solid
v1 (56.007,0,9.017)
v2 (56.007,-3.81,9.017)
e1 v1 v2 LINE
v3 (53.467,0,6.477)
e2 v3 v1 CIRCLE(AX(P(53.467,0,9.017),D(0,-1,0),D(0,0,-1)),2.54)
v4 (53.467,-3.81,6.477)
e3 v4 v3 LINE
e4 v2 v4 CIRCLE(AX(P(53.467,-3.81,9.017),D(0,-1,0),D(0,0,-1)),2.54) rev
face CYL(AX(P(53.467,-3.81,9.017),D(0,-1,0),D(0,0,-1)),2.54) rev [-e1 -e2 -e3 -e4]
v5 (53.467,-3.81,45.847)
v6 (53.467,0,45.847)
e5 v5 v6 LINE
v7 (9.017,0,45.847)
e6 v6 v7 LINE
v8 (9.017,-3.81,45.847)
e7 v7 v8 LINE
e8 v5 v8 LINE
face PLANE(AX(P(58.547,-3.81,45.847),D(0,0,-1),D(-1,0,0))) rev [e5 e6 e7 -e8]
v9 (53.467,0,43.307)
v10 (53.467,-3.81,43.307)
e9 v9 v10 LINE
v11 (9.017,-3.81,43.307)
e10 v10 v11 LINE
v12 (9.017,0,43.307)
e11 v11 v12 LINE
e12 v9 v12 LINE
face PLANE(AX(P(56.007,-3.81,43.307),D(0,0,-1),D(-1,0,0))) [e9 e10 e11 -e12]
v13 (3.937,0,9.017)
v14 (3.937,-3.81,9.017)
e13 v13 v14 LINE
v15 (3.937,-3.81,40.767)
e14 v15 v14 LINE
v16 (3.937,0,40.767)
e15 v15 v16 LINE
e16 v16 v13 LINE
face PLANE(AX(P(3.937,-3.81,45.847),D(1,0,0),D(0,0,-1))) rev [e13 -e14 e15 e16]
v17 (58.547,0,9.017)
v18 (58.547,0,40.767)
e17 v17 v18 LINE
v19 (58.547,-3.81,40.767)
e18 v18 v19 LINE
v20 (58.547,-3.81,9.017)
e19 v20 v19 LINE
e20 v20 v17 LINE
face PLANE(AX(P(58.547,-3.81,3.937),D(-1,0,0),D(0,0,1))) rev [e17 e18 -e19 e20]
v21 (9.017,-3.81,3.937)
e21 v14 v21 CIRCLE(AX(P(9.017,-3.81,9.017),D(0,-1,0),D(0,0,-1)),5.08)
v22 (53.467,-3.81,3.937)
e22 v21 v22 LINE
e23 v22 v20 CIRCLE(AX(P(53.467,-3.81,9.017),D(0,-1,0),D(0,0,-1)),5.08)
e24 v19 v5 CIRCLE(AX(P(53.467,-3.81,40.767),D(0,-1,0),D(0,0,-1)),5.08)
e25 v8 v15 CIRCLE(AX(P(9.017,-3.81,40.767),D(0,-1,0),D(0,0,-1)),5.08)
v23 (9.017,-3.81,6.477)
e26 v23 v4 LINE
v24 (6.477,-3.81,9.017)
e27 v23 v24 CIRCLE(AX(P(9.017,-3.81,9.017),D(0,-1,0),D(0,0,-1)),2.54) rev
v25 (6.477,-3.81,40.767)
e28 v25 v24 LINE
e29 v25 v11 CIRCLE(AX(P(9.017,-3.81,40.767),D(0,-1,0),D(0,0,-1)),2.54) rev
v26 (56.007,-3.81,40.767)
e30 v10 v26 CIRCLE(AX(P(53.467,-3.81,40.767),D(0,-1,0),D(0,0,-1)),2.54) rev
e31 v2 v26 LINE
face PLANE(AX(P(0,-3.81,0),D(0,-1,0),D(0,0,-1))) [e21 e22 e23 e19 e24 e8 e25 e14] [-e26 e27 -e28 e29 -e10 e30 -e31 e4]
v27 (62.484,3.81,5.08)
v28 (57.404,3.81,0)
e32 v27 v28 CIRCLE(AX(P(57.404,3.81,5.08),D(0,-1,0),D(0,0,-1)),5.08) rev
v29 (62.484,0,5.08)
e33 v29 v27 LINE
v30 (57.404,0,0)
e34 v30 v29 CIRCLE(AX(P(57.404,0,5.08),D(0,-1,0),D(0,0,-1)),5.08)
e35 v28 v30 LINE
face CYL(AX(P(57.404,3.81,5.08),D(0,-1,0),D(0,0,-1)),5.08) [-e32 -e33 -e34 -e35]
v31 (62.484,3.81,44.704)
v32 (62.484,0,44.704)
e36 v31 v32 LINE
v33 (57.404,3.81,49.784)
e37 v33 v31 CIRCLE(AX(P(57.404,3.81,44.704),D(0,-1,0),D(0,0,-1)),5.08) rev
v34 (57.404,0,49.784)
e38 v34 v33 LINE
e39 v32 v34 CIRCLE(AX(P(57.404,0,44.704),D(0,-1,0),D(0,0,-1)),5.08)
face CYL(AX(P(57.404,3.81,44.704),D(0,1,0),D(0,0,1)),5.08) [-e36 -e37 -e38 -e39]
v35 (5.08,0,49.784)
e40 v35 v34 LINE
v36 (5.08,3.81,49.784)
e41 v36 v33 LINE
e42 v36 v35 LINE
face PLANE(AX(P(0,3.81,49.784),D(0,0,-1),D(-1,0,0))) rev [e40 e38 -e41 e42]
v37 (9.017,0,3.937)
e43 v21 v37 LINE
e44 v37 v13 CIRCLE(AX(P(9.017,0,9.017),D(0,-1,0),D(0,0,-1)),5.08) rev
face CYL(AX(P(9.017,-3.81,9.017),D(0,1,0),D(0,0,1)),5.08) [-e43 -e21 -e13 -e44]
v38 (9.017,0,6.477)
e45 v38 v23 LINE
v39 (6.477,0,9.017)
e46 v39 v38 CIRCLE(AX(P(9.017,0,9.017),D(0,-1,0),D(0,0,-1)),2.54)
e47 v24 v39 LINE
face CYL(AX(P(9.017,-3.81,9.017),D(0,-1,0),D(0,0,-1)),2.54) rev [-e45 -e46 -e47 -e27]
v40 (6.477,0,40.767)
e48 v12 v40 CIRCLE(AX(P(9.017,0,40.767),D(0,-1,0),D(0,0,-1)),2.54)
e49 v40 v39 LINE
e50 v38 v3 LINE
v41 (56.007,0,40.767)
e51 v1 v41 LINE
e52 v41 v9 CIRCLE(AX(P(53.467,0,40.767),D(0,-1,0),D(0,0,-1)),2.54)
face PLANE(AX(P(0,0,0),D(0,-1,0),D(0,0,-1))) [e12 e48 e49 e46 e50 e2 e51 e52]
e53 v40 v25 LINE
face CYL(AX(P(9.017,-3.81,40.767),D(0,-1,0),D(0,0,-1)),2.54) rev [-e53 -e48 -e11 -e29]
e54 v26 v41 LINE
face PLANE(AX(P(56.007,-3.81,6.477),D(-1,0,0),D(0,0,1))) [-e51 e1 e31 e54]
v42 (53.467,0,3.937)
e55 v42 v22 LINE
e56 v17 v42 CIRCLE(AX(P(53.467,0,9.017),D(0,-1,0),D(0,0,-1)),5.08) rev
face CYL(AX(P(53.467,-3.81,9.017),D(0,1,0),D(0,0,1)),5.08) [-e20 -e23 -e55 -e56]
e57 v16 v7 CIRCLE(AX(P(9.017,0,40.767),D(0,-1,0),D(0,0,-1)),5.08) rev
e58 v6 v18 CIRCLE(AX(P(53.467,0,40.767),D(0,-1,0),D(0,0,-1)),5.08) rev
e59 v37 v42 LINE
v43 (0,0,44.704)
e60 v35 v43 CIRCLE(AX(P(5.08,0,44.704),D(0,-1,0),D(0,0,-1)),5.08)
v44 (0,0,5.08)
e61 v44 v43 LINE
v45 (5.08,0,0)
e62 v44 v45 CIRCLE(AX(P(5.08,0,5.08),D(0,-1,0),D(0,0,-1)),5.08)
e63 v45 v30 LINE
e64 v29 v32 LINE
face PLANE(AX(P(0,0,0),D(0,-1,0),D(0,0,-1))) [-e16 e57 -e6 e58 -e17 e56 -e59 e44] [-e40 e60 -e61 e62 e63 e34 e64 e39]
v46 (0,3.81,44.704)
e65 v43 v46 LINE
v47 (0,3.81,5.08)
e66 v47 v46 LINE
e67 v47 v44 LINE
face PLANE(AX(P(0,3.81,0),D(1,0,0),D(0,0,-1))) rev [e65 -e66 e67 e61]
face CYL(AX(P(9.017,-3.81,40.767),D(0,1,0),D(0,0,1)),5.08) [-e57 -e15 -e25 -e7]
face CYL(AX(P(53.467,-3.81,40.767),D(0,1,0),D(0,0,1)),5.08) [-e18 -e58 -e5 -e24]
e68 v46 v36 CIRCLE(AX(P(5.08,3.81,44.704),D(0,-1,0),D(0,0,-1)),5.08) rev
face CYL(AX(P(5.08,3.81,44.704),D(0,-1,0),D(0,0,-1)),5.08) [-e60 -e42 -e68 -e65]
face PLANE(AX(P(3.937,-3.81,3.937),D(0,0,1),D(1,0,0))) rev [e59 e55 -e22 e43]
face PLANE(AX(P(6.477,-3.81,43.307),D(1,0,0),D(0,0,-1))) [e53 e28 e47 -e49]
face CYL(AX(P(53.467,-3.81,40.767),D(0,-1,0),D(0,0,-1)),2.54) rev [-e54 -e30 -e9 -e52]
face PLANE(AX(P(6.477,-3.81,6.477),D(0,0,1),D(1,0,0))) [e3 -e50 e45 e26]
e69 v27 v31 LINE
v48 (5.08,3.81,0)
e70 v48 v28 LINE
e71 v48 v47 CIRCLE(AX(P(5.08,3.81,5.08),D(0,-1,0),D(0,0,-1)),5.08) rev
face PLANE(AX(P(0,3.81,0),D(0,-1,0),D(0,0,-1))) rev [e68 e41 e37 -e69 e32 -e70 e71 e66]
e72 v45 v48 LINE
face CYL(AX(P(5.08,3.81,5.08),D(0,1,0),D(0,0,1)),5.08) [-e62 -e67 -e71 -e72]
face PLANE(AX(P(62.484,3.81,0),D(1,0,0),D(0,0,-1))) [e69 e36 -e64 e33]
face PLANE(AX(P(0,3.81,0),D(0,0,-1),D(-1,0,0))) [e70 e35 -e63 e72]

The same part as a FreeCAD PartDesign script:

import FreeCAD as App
import Part
import Sketcher
Q = App.Units.Quantity


def edges_at(feature, points):
    """Names of the edges that pass closest to the given points."""
    edges = feature.Shape.Edges
    near = lambda p: min(range(len(edges)), key=lambda i: edges[i].distToShape(Part.Vertex(*p))[0])
    return sorted({f"Edge{near(p) + 1}" for p in points})

doc = App.newDocument("Part")
params = doc.addObject("Spreadsheet::Sheet", "Params")
for row, (alias, value) in enumerate([
    ("sketch1_width", "2.46 in"),
    ("sketch1_height", "1.96 in"),
    ("pad1_length", "0.15 in"),
    ("sketch2_width", "2.15 in"),
    ("sketch2_width2", "1.95 in"),
    ("sketch2_height", "1.65 in"),
    ("sketch2_height2", "1.45 in"),
    ("pad2_length", "0.15 in"),
    ("fillet_radius", "0.2 in"),
    ("fillet2_radius", "0.2 in"),
    ("fillet3_radius", "0.1 in"),
], start=1):
    params.set(f"A{row}", alias)
    params.set(f"B{row}", "=" + value)
    params.setAlias(f"B{row}", alias)

body = doc.addObject("PartDesign::Body", "Body")

# Sketch on XZ plane
sketch1 = body.newObject("Sketcher::SketchObject", "Sketch")
sketch1.AttachmentSupport = (doc.getObject("XZ_Plane"), [""])
sketch1.MapMode = "FlatFace"
sketch1.addGeometry(Part.LineSegment(App.Vector(0, 0, 0), App.Vector(0, 50, 0)), False)
sketch1.addGeometry(Part.LineSegment(App.Vector(0, 50, 0), App.Vector(62, 50, 0)), False)
sketch1.addGeometry(Part.LineSegment(App.Vector(62, 50, 0), App.Vector(62, 0, 0)), False)
sketch1.addGeometry(Part.LineSegment(App.Vector(62, 0, 0), App.Vector(0, 0, 0)), False)
sketch1.addConstraint(Sketcher.Constraint("Coincident", 0, 2, 1, 1))
sketch1.addConstraint(Sketcher.Constraint("Coincident", 1, 2, 2, 1))
sketch1.addConstraint(Sketcher.Constraint("Coincident", 2, 2, 3, 1))
sketch1.addConstraint(Sketcher.Constraint("Coincident", 3, 2, 0, 1))
sketch1.addConstraint(Sketcher.Constraint("Vertical", 0))
sketch1.addConstraint(Sketcher.Constraint("Horizontal", 1))
sketch1.addConstraint(Sketcher.Constraint("Vertical", 2))
sketch1.addConstraint(Sketcher.Constraint("Horizontal", 3))
sketch1.addConstraint(Sketcher.Constraint("Coincident", 3, 2, -1, 1))
sketch1.addConstraint(Sketcher.Constraint("DistanceX", 1, 1, 1, 2, Q("2.46 in")))
sketch1.addConstraint(Sketcher.Constraint("DistanceY", 0, 1, 0, 2, Q("1.96 in")))
sketch1.setExpression("Constraints[9]", "Params.sketch1_width")
sketch1.setExpression("Constraints[10]", "Params.sketch1_height")
pad1 = body.newObject("PartDesign::Pad", "Pad")
pad1.Profile = sketch1
pad1.setExpression("Length", "Params.pad1_length")
pad1.Reversed = True

# Sketch on XZ plane
sketch2 = body.newObject("Sketcher::SketchObject", "Sketch001")
sketch2.AttachmentSupport = (doc.getObject("XZ_Plane"), [""])
sketch2.MapMode = "FlatFace"
sketch2.addGeometry(Part.LineSegment(App.Vector(4, 46, 0), App.Vector(4, 4, 0)), False)
sketch2.addGeometry(Part.LineSegment(App.Vector(4, 4, 0), App.Vector(59, 4, 0)), False)
sketch2.addGeometry(Part.LineSegment(App.Vector(59, 4, 0), App.Vector(59, 46, 0)), False)
sketch2.addGeometry(Part.LineSegment(App.Vector(59, 46, 0), App.Vector(4, 46, 0)), False)
sketch2.addGeometry(Part.LineSegment(App.Vector(56, 6, 0), App.Vector(6, 6, 0)), False)
sketch2.addGeometry(Part.LineSegment(App.Vector(6, 6, 0), App.Vector(6, 43, 0)), False)
sketch2.addGeometry(Part.LineSegment(App.Vector(6, 43, 0), App.Vector(56, 43, 0)), False)
sketch2.addGeometry(Part.LineSegment(App.Vector(56, 43, 0), App.Vector(56, 6, 0)), False)
sketch2.addConstraint(Sketcher.Constraint("Coincident", 0, 2, 1, 1))
sketch2.addConstraint(Sketcher.Constraint("Coincident", 1, 2, 2, 1))
sketch2.addConstraint(Sketcher.Constraint("Coincident", 2, 2, 3, 1))
sketch2.addConstraint(Sketcher.Constraint("Coincident", 3, 2, 0, 1))
sketch2.addConstraint(Sketcher.Constraint("Coincident", 4, 2, 5, 1))
sketch2.addConstraint(Sketcher.Constraint("Coincident", 5, 2, 6, 1))
sketch2.addConstraint(Sketcher.Constraint("Coincident", 6, 2, 7, 1))
sketch2.addConstraint(Sketcher.Constraint("Coincident", 7, 2, 4, 1))
sketch2.addConstraint(Sketcher.Constraint("Vertical", 0))
sketch2.addConstraint(Sketcher.Constraint("Horizontal", 1))
sketch2.addConstraint(Sketcher.Constraint("Vertical", 2))
sketch2.addConstraint(Sketcher.Constraint("Horizontal", 3))
sketch2.addConstraint(Sketcher.Constraint("Horizontal", 4))
sketch2.addConstraint(Sketcher.Constraint("Vertical", 5))
sketch2.addConstraint(Sketcher.Constraint("Horizontal", 6))
sketch2.addConstraint(Sketcher.Constraint("Vertical", 7))
sketch2.addConstraint(Sketcher.Constraint("DistanceX", 1, 1, 1, 2, Q("2.15 in")))
sketch2.addConstraint(Sketcher.Constraint("DistanceX", 4, 2, 4, 1, Q("1.95 in")))
sketch2.addConstraint(Sketcher.Constraint("DistanceY", 0, 2, 0, 1, Q("1.65 in")))
sketch2.addConstraint(Sketcher.Constraint("DistanceY", 5, 1, 5, 2, Q("1.45 in")))
sketch2.addConstraint(Sketcher.Constraint("DistanceX", 0, 2, 4, 2, Q("0.1 in")))
sketch2.addConstraint(Sketcher.Constraint("DistanceY", 0, 2, 4, 2, Q("0.1 in")))
sketch2.addConstraint(Sketcher.Constraint("DistanceX", -1, 1, 0, 2, Q("0.155 in")))
sketch2.addConstraint(Sketcher.Constraint("DistanceY", -1, 1, 0, 2, Q("0.155 in")))
sketch2.setExpression("Constraints[16]", "Params.sketch2_width")
sketch2.setExpression("Constraints[17]", "Params.sketch2_width2")
sketch2.setExpression("Constraints[18]", "Params.sketch2_height")
sketch2.setExpression("Constraints[19]", "Params.sketch2_height2")
pad2 = body.newObject("PartDesign::Pad", "Pad001")
pad2.Profile = sketch2
pad2.setExpression("Length", "Params.pad2_length")
doc.recompute()

fillet = body.newObject("PartDesign::Fillet", "Fillet")
fillet.Base = (pad2, edges_at(pad2, [
    (0, 1.905, 49.784),
    (0, 1.905, 0),
    (62.484, 1.905, 0),
    (62.484, 1.905, 49.784),
]))
fillet.setExpression("Radius", "Params.fillet_radius")
doc.recompute()

fillet2 = body.newObject("PartDesign::Fillet", "Fillet001")
fillet2.Base = (fillet, edges_at(fillet, [
    (58.547, -1.905, 3.937),
    (58.547, -1.905, 45.847),
    (3.937, -1.905, 45.847),
    (3.937, -1.905, 3.937),
]))
fillet2.setExpression("Radius", "Params.fillet2_radius")
doc.recompute()

fillet3 = body.newObject("PartDesign::Fillet", "Fillet002")
fillet3.Base = (fillet2, edges_at(fillet2, [
    (56.007, -1.905, 43.307),
    (6.477, -1.905, 43.307),
    (6.477, -1.905, 6.477),
    (56.007, -1.905, 6.477),
]))
fillet3.setExpression("Radius", "Params.fillet3_radius")

doc.recompute()
